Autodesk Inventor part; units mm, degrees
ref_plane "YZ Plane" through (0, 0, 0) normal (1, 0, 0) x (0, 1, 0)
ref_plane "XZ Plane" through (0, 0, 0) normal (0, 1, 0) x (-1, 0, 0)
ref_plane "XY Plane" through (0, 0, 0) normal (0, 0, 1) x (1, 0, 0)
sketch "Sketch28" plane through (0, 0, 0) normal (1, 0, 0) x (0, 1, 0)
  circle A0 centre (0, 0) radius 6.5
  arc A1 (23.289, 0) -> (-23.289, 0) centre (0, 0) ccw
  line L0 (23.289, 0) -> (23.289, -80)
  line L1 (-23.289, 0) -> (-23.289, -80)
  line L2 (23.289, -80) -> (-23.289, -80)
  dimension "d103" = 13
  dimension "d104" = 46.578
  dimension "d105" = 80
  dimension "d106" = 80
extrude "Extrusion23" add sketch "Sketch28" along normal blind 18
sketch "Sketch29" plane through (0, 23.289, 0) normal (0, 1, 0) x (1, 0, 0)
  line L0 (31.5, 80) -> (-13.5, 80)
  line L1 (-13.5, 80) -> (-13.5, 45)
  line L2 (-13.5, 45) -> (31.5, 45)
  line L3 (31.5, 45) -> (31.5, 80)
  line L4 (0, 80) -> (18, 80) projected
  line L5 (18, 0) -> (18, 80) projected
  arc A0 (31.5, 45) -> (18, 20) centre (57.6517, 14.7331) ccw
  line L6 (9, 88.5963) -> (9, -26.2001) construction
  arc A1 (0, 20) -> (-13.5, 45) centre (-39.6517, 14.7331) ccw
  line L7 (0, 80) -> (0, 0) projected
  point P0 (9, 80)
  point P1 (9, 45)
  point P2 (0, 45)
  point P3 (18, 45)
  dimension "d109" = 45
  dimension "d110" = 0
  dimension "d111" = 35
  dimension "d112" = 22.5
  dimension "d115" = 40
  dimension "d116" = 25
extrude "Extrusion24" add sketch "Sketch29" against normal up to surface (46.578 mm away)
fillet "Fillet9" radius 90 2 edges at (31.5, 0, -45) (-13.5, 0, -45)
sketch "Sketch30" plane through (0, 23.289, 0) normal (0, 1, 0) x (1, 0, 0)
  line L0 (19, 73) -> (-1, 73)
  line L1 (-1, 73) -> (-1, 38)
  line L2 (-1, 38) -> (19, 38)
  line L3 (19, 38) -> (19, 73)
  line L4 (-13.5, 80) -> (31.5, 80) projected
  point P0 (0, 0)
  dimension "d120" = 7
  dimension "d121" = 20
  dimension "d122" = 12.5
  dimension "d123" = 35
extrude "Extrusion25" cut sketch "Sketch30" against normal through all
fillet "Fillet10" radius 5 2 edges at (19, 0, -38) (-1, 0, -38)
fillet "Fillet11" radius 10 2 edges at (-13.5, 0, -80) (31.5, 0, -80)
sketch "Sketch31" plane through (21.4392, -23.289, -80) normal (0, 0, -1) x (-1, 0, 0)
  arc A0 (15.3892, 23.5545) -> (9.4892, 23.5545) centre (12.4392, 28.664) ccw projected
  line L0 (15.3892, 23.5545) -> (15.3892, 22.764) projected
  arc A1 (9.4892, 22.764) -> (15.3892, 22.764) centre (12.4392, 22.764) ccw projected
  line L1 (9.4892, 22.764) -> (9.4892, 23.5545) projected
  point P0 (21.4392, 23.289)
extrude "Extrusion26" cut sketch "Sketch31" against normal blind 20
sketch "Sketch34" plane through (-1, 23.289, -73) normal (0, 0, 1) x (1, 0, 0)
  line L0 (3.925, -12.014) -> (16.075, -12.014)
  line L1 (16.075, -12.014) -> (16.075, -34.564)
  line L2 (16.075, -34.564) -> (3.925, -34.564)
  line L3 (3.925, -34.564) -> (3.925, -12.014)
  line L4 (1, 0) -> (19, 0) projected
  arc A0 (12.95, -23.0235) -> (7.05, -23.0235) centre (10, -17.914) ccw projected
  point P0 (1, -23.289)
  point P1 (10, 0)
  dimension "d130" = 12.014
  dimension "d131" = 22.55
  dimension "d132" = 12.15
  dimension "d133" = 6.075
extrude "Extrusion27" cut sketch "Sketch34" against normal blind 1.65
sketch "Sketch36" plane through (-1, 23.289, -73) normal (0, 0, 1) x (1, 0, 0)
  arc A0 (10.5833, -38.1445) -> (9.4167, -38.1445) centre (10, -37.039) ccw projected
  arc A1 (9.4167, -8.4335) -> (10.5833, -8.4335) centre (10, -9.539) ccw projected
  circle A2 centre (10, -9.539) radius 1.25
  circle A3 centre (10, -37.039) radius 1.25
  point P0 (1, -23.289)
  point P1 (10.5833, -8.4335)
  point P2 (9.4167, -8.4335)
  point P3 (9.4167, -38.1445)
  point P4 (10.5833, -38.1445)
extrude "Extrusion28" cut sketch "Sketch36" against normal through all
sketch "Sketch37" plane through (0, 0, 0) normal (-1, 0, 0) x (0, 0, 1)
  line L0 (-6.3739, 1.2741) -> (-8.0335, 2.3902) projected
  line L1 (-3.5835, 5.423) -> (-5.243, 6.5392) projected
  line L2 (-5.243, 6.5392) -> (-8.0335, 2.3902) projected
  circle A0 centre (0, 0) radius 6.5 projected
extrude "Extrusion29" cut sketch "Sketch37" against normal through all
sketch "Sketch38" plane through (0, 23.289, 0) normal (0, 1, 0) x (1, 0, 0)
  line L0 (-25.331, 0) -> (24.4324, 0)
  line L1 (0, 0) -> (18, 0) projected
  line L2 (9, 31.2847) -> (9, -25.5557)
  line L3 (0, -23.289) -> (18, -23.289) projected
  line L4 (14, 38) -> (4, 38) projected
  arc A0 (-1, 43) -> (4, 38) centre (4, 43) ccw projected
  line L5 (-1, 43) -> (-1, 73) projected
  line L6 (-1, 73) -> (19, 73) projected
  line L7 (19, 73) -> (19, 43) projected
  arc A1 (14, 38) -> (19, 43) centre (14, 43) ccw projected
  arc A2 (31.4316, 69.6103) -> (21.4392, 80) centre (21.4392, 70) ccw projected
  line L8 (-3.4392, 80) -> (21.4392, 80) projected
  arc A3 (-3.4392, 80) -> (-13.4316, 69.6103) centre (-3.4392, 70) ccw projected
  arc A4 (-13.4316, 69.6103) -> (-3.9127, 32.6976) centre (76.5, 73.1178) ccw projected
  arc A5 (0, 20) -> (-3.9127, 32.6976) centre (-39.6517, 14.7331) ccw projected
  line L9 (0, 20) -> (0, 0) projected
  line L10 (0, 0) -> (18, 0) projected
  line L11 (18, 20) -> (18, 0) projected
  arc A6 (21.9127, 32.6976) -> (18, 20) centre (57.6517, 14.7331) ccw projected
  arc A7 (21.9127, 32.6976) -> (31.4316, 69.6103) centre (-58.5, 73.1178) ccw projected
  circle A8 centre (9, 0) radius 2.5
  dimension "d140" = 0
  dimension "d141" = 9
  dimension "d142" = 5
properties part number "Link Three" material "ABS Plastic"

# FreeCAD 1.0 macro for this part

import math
import FreeCAD as App
import Part
import Sketcher

V = App.Vector


def edges_at(feature, points):
    """Names of the edges that pass closest to the given points."""
    edges = feature.Shape.Edges
    near = lambda p: min(range(len(edges)), key=lambda i: edges[i].distToShape(Part.Vertex(*p))[0])
    return sorted({f"Edge{near(p) + 1}" for p in points})


def add_polygon(sketch, points):
    """Adds a closed chain of lines whose ends are joined by coincident constraints."""
    first, n = sketch.GeometryCount, len(points)
    for a, b in zip(points, points[1:] + points[:1]):
        sketch.addGeometry(Part.LineSegment(App.Vector(*a, 0), App.Vector(*b, 0)), False)
    for i in range(n):
        sketch.addConstraint(Sketcher.Constraint("Coincident", first + i, 2, first + (i + 1) % n, 1))

doc = App.newDocument("Part")
params = doc.addObject("Spreadsheet::Sheet", "Params")
for row, (alias, value) in enumerate([
    ("sketch1_diameter", "13 mm"),
    ("sketch1_height", "80 mm"),
    ("pad1_length", "18 mm"),
    ("sketch2_radius", "40 mm"),
    ("sketch2_width", "45 mm"),
    ("sketch2_height", "35 mm"),
    ("sketch2_height2", "25 mm"),
    ("sketch2_width2", "18 mm"),
    ("pad2_length", "46.578 mm"),
    ("fillet_radius", "90 mm"),
    ("sketch3_width", "20 mm"),
    ("sketch3_height", "35 mm"),
    ("fillet2_radius", "5 mm"),
    ("fillet3_radius", "10 mm"),
    ("sketch4_radius", "5.9 mm"),
    ("sketch4_radius2", "2.95 mm"),
    ("pocket2_length", "20 mm"),
    ("sketch5_width", "12.15 mm"),
    ("sketch5_height", "22.55 mm"),
    ("pocket3_length", "1.65 mm"),
    ("sketch6_diameter", "2.5 mm"),
    ("sketch7_radius", "6.5 mm"),
    ("sketch7_length", "2 mm"),
    ("sketch7_length2", "5 mm"),
], start=1):
    params.set(f"A{row}", alias)
    params.set(f"B{row}", "=" + value)
    params.setAlias(f"B{row}", alias)

body = doc.addObject("PartDesign::Body", "Body")

sketch1 = doc.addObject("Sketcher::SketchObject", "Sketch")
body.addObject(sketch1)
sketch1.AttachmentSupport = (doc.YZ_Plane, [""])
sketch1.MapMode = "FlatFace"
sketch1.addGeometry([
    Part.LineSegment(V(23.289, -80, 0), V(23.289, 0, 0)),
    Part.ArcOfCircle(Part.Circle(V(0, 0, 0), V(0, 0, 1), 23.289), math.radians(0), math.radians(180)),
    Part.LineSegment(V(-23.289, 0, 0), V(-23.289, -80, 0)),
    Part.LineSegment(V(-23.289, -80, 0), V(23.289, -80, 0)),
    Part.Circle(V(0, 0, 0), V(0, 0, 1), 6.5),
], False)
sketch1.addConstraint([
    Sketcher.Constraint("Tangent", 0, 2, 1, 1),
    Sketcher.Constraint("Tangent", 1, 2, 2, 1),
    Sketcher.Constraint("Coincident", 2, 2, 3, 1),
    Sketcher.Constraint("Coincident", 3, 2, 0, 1),
    Sketcher.Constraint("Vertical", 0),
    Sketcher.Constraint("Vertical", 2),
    Sketcher.Constraint("Horizontal", 3),
    Sketcher.Constraint("Coincident", 1, 3, -1, 1),
    Sketcher.Constraint("Coincident", 4, 3, -1, 1),
    Sketcher.Constraint("Diameter", 4, 13.0),
    Sketcher.Constraint("DistanceY", 0, 1, 0, 2, 80.0),
    Sketcher.Constraint("Radius", 1, 23.289),
])
sketch1.setExpression("Constraints[9]", "Params.sketch1_diameter")
sketch1.setExpression("Constraints[10]", "Params.sketch1_height")
pad1 = doc.addObject("PartDesign::Pad", "Pad")
body.addObject(pad1)
pad1.Profile = sketch1
pad1.setExpression("Length", "Params.pad1_length")

sketch2 = doc.addObject("Sketcher::SketchObject", "Sketch001")
body.addObject(sketch2)
sketch2.AttachmentSupport = (doc.XZ_Plane, [""])
sketch2.MapMode = "FlatFace"
sketch2.AttachmentOffset = App.Placement(V(0, 0, -23.289), App.Rotation())
sketch2.addGeometry([
    Part.LineSegment(V(31.5, -45, 0), V(31.5, -80, 0)),
    Part.LineSegment(V(31.5, -80, 0), V(-13.5, -80, 0)),
    Part.LineSegment(V(-13.5, -80, 0), V(-13.5, -45, 0)),
    Part.ArcOfCircle(Part.Circle(V(-39.6517, -14.7331, 0), V(0, 0, 1), 39.999969), math.radians(-49.171794), math.radians(-7.566256)),
    Part.LineSegment(V(0, -20, 0), V(0, -45, 0)),
    Part.LineSegment(V(0, -45, 0), V(18, -45, 0)),
    Part.LineSegment(V(18, -45, 0), V(18, -20, 0)),
    Part.ArcOfCircle(Part.Circle(V(57.6517, -14.7331, 0), V(0, 0, 1), 39.999958), math.radians(-172.433744), math.radians(-130.828206)),
], False)
sketch2.addConstraint([
    Sketcher.Constraint("Coincident", 0, 2, 1, 1),
    Sketcher.Constraint("Coincident", 1, 2, 2, 1),
    Sketcher.Constraint("Coincident", 2, 2, 3, 1),
    Sketcher.Constraint("Coincident", 3, 2, 4, 1),
    Sketcher.Constraint("Coincident", 4, 2, 5, 1),
    Sketcher.Constraint("Coincident", 5, 2, 6, 1),
    Sketcher.Constraint("Coincident", 6, 2, 7, 1),
    Sketcher.Constraint("Coincident", 7, 2, 0, 1),
    Sketcher.Constraint("Vertical", 0),
    Sketcher.Constraint("Horizontal", 1),
    Sketcher.Constraint("Vertical", 2),
    Sketcher.Constraint("Vertical", 4),
    Sketcher.Constraint("Horizontal", 5),
    Sketcher.Constraint("Vertical", 6),
    Sketcher.Constraint("Equal", 3, 7),
    Sketcher.Constraint("PointOnObject", 3, 2, -2),
    Sketcher.Constraint("Horizontal", 3, 3, 7, 3),
    Sketcher.Constraint("Horizontal", 2, 2, 4, 2),
    Sketcher.Constraint("Horizontal", 3, 2, 6, 2),
    Sketcher.Constraint("Horizontal", 5, 2, 7, 2),
    Sketcher.Constraint("Radius", 3, 40.0),
    Sketcher.Constraint("DistanceX", 1, 2, 1, 1, 45.0),
    Sketcher.Constraint("DistanceY", 0, 2, 0, 1, 35.0),
    Sketcher.Constraint("DistanceY", 4, 2, 4, 1, 25.0),
    Sketcher.Constraint("DistanceY", 2, 2, -1, 1, 45.0),
    Sketcher.Constraint("DistanceX", 5, 1, 5, 2, 18.0),
])
sketch2.setExpression("Constraints[20]", "Params.sketch2_radius")
sketch2.setExpression("Constraints[21]", "Params.sketch2_width")
sketch2.setExpression("Constraints[22]", "Params.sketch2_height")
sketch2.setExpression("Constraints[23]", "Params.sketch2_height2")
sketch2.setExpression("Constraints[25]", "Params.sketch2_width2")
pad2 = doc.addObject("PartDesign::Pad", "Pad001")
body.addObject(pad2)
pad2.Profile = sketch2
pad2.setExpression("Length", "Params.pad2_length")
doc.recompute()

fillet = doc.addObject("PartDesign::Fillet", "Fillet")
body.addObject(fillet)
fillet.Base = (pad2, edges_at(pad2, [(31.5, 0, -45), (-13.5, 0, -45)]))
fillet.setExpression("Radius", "Params.fillet_radius")

sketch3 = doc.addObject("Sketcher::SketchObject", "Sketch002")
body.addObject(sketch3)
sketch3.AttachmentSupport = (doc.XZ_Plane, [""])
sketch3.MapMode = "FlatFace"
sketch3.AttachmentOffset = App.Placement(V(0, 0, -23.289), App.Rotation())
add_polygon(sketch3, [(19, -38), (19, -73), (-1, -73), (-1, -38)])
sketch3.addConstraint([
    Sketcher.Constraint("Vertical", 0),
    Sketcher.Constraint("Horizontal", 1),
    Sketcher.Constraint("Vertical", 2),
    Sketcher.Constraint("Horizontal", 3),
    Sketcher.Constraint("DistanceX", 1, 2, 1, 1, 20.0),
    Sketcher.Constraint("DistanceY", 0, 2, 0, 1, 35.0),
    Sketcher.Constraint("DistanceX", -1, 1, 0, 2, 19.0),
    Sketcher.Constraint("DistanceY", 0, 2, -1, 1, 73.0),
])
sketch3.setExpression("Constraints[8]", "Params.sketch3_width")
sketch3.setExpression("Constraints[9]", "Params.sketch3_height")
pocket1 = doc.addObject("PartDesign::Pocket", "Pocket")
body.addObject(pocket1)
pocket1.Profile = sketch3
pocket1.Type = "ThroughAll"
pocket1.Reversed = True
doc.recompute()

fillet2 = doc.addObject("PartDesign::Fillet", "Fillet001")
body.addObject(fillet2)
fillet2.Base = (pocket1, edges_at(pocket1, [(19, 0, -38), (-1, 0, -38)]))
fillet2.setExpression("Radius", "Params.fillet2_radius")
doc.recompute()

fillet3 = doc.addObject("PartDesign::Fillet", "Fillet002")
body.addObject(fillet3)
fillet3.Base = (fillet2, edges_at(fillet2, [(-13.5, 0, -80), (31.5, 0, -80)]))
fillet3.setExpression("Radius", "Params.fillet3_radius")

sketch4 = doc.addObject("Sketcher::SketchObject", "Sketch003")
body.addObject(sketch4)
sketch4.AttachmentSupport = (doc.XY_Plane, [""])
sketch4.MapMode = "FlatFace"
sketch4.AttachmentOffset = App.Placement(V(0, 0, -80), App.Rotation())
sketch4.addGeometry([
    Part.LineSegment(V(6.05, -0.525, 0), V(6.05, 0.2655, 0)),
    Part.ArcOfCircle(Part.Circle(V(9, 5.375, 0), V(0, 0, 1), 5.899957), math.radians(-59.999758), math.radians(239.999758)),
    Part.LineSegment(V(11.95, 0.2655, 0), V(11.95, -0.525, 0)),
    Part.ArcOfCircle(Part.Circle(V(9, -0.525, 0), V(0, 0, 1), 2.95), math.radians(180), math.radians(360)),
], False)
sketch4.addConstraint([
    Sketcher.Constraint("Coincident", 0, 2, 1, 2),
    Sketcher.Constraint("Coincident", 1, 1, 2, 1),
    Sketcher.Constraint("Tangent", 2, 2, 3, 2),
    Sketcher.Constraint("Tangent", 3, 1, 0, 1),
    Sketcher.Constraint("Vertical", 0),
    Sketcher.Constraint("Vertical", 2),
    Sketcher.Constraint("Horizontal", 0, 2, 1, 1),
    Sketcher.Constraint("Radius", 1, 5.9),
    Sketcher.Constraint("Radius", 3, 2.95),
    Sketcher.Constraint("DistanceX", -1, 1, 1, 3, 9.0),
    Sketcher.Constraint("DistanceY", 3, 3, 1, 3, 5.9),
    Sketcher.Constraint("DistanceY", -1, 1, 1, 3, 5.375),
])
sketch4.setExpression("Constraints[7]", "Params.sketch4_radius")
sketch4.setExpression("Constraints[8]", "Params.sketch4_radius2")
pocket2 = doc.addObject("PartDesign::Pocket", "Pocket001")
body.addObject(pocket2)
pocket2.Profile = sketch4
pocket2.setExpression("Length", "Params.pocket2_length")
pocket2.Reversed = True

sketch5 = doc.addObject("Sketcher::SketchObject", "Sketch004")
body.addObject(sketch5)
sketch5.AttachmentSupport = (doc.XY_Plane, [""])
sketch5.MapMode = "FlatFace"
sketch5.AttachmentOffset = App.Placement(V(0, 0, -73), App.Rotation())
add_polygon(sketch5, [(15.075, 11.275), (2.925, 11.275), (2.925, -11.275), (15.075, -11.275)])
sketch5.addConstraint([
    Sketcher.Constraint("Horizontal", 0),
    Sketcher.Constraint("Vertical", 1),
    Sketcher.Constraint("Horizontal", 2),
    Sketcher.Constraint("Vertical", 3),
    Sketcher.Constraint("DistanceX", 0, 2, 0, 1, 12.15),
    Sketcher.Constraint("DistanceY", 1, 2, 1, 1, 22.55),
    Sketcher.Constraint("DistanceX", -1, 1, 0, 2, 2.925),
    Sketcher.Constraint("DistanceY", -1, 1, 0, 2, 11.275),
])
sketch5.setExpression("Constraints[8]", "Params.sketch5_width")
sketch5.setExpression("Constraints[9]", "Params.sketch5_height")
pocket3 = doc.addObject("PartDesign::Pocket", "Pocket002")
body.addObject(pocket3)
pocket3.Profile = sketch5
pocket3.setExpression("Length", "Params.pocket3_length")

sketch6 = doc.addObject("Sketcher::SketchObject", "Sketch005")
body.addObject(sketch6)
sketch6.AttachmentSupport = (doc.XY_Plane, [""])
sketch6.MapMode = "FlatFace"
sketch6.AttachmentOffset = App.Placement(V(0, 0, -73), App.Rotation())
sketch6.addGeometry([
    Part.Circle(V(9, -13.75, 0), V(0, 0, 1), 1.249948),
    Part.Circle(V(9, 13.75, 0), V(0, 0, 1), 1.249948),
], False)
sketch6.addConstraint([
    Sketcher.Constraint("Equal", 0, 1),
    Sketcher.Constraint("Symmetric", 0, 3, 1, 3, -1),
    Sketcher.Constraint("Diameter", 0, 2.5),
    Sketcher.Constraint("DistanceX", -1, 1, 0, 3, 9.0),
    Sketcher.Constraint("DistanceY", 0, 3, 1, 3, 27.5),
])
sketch6.setExpression("Constraints[2]", "Params.sketch6_diameter")
pocket4 = doc.addObject("PartDesign::Pocket", "Pocket003")
body.addObject(pocket4)
pocket4.Profile = sketch6
pocket4.Type = "ThroughAll"

sketch7 = doc.addObject("Sketcher::SketchObject", "Sketch006")
body.addObject(sketch7)
sketch7.AttachmentSupport = (doc.YZ_Plane, [""])
sketch7.MapMode = "FlatFace"
sketch7.addGeometry([
    Part.LineSegment(V(2.3902, -8.0335, 0), V(1.2741, -6.3739, 0)),
    Part.ArcOfCircle(Part.Circle(V(0, 0, 0), V(0, 0, 1), 6.5), math.radians(-33.456593), math.radians(281.304055)),
    Part.LineSegment(V(5.423, -3.5835, 0), V(6.5392, -5.243, 0)),
    Part.LineSegment(V(6.5392, -5.243, 0), V(2.3902, -8.0335, 0)),
], False)
sketch7.addConstraint([
    Sketcher.Constraint("Coincident", 0, 2, 1, 2),
    Sketcher.Constraint("Coincident", 1, 1, 2, 1),
    Sketcher.Constraint("Coincident", 2, 2, 3, 1),
    Sketcher.Constraint("Coincident", 3, 2, 0, 1),
    Sketcher.Constraint("Coincident", 1, 3, -1, 1),
    Sketcher.Constraint("Parallel", 0, 2),
    Sketcher.Constraint("Perpendicular", 2, 3),
    Sketcher.Constraint("Equal", 0, 2),
    Sketcher.Constraint("Radius", 1, 6.5),
    Sketcher.Constraint("Distance", 0, 2.0),
    Sketcher.Constraint("Distance", 3, 5.0),
    Sketcher.Constraint("DistanceY", 3, 2, 1, 1, 4.45),
])
sketch7.setExpression("Constraints[8]", "Params.sketch7_radius")
sketch7.setExpression("Constraints[9]", "Params.sketch7_length")
sketch7.setExpression("Constraints[10]", "Params.sketch7_length2")
pocket5 = doc.addObject("PartDesign::Pocket", "Pocket004")
body.addObject(pocket5)
pocket5.Profile = sketch7
pocket5.Type = "ThroughAll"
pocket5.Reversed = True

doc.recompute()
